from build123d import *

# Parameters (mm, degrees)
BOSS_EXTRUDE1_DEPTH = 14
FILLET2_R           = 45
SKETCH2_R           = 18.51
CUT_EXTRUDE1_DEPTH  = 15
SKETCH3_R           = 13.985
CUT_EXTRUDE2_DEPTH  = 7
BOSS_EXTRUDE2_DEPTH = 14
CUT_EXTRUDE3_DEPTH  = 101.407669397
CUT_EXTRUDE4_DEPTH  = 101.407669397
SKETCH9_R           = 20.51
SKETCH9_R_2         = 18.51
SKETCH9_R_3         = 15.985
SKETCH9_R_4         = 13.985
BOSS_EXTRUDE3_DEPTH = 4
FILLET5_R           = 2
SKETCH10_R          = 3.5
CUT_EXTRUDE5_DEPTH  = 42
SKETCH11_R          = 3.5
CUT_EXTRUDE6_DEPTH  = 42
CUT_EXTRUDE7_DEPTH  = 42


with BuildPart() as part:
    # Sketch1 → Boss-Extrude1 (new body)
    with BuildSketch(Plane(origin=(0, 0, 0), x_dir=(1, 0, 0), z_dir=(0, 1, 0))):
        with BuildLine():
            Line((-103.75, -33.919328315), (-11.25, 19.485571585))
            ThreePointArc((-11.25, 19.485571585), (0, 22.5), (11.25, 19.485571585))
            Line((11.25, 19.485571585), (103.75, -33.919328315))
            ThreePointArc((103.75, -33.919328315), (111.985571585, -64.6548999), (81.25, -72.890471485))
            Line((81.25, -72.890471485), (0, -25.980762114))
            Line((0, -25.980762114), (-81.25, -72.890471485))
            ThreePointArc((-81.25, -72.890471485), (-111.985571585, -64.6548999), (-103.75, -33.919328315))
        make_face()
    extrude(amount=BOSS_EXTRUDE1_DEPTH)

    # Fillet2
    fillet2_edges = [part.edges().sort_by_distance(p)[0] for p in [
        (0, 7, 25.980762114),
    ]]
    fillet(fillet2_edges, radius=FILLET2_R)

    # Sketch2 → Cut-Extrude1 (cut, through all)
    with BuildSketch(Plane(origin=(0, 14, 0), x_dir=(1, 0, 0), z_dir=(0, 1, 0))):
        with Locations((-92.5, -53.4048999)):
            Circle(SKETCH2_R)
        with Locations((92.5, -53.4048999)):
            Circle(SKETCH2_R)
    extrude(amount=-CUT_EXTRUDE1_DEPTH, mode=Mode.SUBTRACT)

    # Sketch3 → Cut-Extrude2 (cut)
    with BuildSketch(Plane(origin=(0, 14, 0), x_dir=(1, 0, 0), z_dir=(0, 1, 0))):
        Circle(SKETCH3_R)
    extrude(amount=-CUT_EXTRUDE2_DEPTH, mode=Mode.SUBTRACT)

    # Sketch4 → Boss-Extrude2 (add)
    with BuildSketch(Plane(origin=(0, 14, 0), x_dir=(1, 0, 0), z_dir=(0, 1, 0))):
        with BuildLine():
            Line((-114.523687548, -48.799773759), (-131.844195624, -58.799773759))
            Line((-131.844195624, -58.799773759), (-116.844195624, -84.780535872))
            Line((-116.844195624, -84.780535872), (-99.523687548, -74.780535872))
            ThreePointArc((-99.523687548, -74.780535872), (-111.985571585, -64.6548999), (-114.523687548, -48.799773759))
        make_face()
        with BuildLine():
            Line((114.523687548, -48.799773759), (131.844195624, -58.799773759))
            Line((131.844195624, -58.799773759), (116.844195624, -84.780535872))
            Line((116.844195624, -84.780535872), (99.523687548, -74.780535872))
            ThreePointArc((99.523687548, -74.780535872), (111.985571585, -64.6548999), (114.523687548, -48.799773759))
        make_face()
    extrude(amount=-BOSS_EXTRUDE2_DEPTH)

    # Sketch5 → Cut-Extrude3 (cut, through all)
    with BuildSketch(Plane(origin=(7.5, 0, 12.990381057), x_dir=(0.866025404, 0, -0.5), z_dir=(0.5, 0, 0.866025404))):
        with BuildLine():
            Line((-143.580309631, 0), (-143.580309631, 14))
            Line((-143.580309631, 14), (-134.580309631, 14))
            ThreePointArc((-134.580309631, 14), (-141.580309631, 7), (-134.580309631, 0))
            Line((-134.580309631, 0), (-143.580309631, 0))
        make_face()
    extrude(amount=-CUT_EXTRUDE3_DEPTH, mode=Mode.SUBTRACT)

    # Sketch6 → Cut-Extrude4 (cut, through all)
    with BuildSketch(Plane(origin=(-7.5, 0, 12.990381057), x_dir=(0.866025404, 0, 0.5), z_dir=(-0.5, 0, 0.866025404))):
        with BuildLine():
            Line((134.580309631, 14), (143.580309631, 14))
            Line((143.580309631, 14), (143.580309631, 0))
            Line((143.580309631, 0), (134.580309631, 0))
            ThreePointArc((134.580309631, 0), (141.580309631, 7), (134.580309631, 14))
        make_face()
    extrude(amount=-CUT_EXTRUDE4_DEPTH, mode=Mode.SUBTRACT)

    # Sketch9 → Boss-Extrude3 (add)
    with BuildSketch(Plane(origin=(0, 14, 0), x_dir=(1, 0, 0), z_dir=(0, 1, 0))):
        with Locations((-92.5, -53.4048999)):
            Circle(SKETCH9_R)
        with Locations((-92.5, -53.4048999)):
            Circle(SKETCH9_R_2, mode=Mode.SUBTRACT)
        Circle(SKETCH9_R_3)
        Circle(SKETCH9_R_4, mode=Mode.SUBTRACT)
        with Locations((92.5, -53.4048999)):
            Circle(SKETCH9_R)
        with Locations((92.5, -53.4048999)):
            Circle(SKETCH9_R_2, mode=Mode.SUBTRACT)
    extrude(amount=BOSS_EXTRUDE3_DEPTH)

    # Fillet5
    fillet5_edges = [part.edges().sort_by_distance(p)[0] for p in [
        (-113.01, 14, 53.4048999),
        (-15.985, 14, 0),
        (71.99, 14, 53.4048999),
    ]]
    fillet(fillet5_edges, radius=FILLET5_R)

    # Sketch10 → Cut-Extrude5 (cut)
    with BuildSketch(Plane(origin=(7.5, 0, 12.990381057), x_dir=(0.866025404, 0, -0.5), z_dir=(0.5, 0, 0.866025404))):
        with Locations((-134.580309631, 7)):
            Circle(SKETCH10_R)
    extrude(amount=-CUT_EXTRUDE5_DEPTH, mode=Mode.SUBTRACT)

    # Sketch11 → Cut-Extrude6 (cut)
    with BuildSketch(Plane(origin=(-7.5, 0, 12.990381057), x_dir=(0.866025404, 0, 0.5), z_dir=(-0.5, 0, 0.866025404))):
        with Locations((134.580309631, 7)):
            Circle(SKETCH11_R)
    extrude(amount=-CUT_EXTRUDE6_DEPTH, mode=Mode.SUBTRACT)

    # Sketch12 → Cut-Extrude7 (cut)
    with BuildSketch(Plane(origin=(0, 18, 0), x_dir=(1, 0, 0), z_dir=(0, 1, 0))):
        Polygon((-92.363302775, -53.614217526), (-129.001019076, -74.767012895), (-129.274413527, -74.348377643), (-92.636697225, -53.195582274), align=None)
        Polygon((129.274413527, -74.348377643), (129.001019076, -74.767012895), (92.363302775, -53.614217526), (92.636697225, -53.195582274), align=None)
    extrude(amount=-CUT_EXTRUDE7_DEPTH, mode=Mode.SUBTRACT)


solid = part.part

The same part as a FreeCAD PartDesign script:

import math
import FreeCAD as App
import Part
import Sketcher
from FreeCAD import Vector
Q = App.Units.Quantity


def edges_at(feature, points):
    """Names of the edges that pass closest to the given points."""
    edges = feature.Shape.Edges
    near = lambda p: min(range(len(edges)), key=lambda i: edges[i].distToShape(Part.Vertex(*p))[0])
    return sorted({f"Edge{near(p) + 1}" for p in points})

doc = App.newDocument("Part")
body = doc.addObject("PartDesign::Body", "Body")

# Sketch on XZ plane
sketch1 = body.newObject("Sketcher::SketchObject", "Sketch")
sketch1.AttachmentSupport = (doc.getObject("XZ_Plane"), [""])
sketch1.MapMode = "FlatFace"
sketch1.addGeometry(Part.LineSegment(Vector(-11.25, -19.485572, 0), Vector(-103.75, 33.919328, 0)), False)
sketch1.addGeometry(Part.ArcOfCircle(Part.Circle(Vector(-92.5, 53.4049, 0), Vector(0, 0, 1), 22.5), math.radians(60), math.radians(240)), False)
sketch1.addGeometry(Part.LineSegment(Vector(-81.25, 72.890471, 0), Vector(0, 25.980762, 0)), False)
sketch1.addGeometry(Part.LineSegment(Vector(0, 25.980762, 0), Vector(81.25, 72.890471, 0)), False)
sketch1.addGeometry(Part.ArcOfCircle(Part.Circle(Vector(92.5, 53.4049, 0), Vector(0, 0, 1), 22.5), math.radians(-60), math.radians(120)), False)
sketch1.addGeometry(Part.LineSegment(Vector(103.75, 33.919328, 0), Vector(11.25, -19.485572, 0)), False)
sketch1.addGeometry(Part.ArcOfCircle(Part.Circle(Vector(0, 0, 0), Vector(0, 0, 1), 22.5), math.radians(-120), math.radians(-60)), False)
sketch1.addConstraint(Sketcher.Constraint("Tangent", 0, 2, 1, 2))
sketch1.addConstraint(Sketcher.Constraint("Tangent", 1, 1, 2, 1))
sketch1.addConstraint(Sketcher.Constraint("Coincident", 2, 2, 3, 1))
sketch1.addConstraint(Sketcher.Constraint("Tangent", 3, 2, 4, 2))
sketch1.addConstraint(Sketcher.Constraint("Tangent", 4, 1, 5, 1))
sketch1.addConstraint(Sketcher.Constraint("Tangent", 5, 2, 6, 2))
sketch1.addConstraint(Sketcher.Constraint("Tangent", 6, 1, 0, 1))
sketch1.addConstraint(Sketcher.Constraint("Coincident", 6, 3, -1, 1))
sketch1.addConstraint(Sketcher.Constraint("Equal", 1, 4))
sketch1.addConstraint(Sketcher.Constraint("Equal", 4, 6))
sketch1.addConstraint(Sketcher.Constraint("Symmetric", 1, 3, 4, 3, -2))
sketch1.addConstraint(Sketcher.Constraint("PointOnObject", 2, 2, -2))
sketch1.addConstraint(Sketcher.Constraint("Parallel", 0, 2))
sketch1.addConstraint(Sketcher.Constraint("Radius", 1, Q("22.5 mm")))
sketch1.addConstraint(Sketcher.Constraint("Angle", 0, Q("150 deg")))
sketch1.addConstraint(Sketcher.Constraint("DistanceX", 1, 3, 4, 3, Q("185 mm")))
pad1 = body.newObject("PartDesign::Pad", "Pad")
pad1.Profile = sketch1
pad1.Length = 14
pad1.Reversed = True
doc.recompute()

fillet = body.newObject("PartDesign::Fillet", "Fillet")
fillet.Base = (pad1, edges_at(pad1, [(0, 7, 25.981)]))
fillet.Radius = 45

# Sketch on XZ plane
sketch2 = body.newObject("Sketcher::SketchObject", "Sketch001")
sketch2.AttachmentSupport = (doc.getObject("XZ_Plane"), [""])
sketch2.MapMode = "FlatFace"
sketch2.AttachmentOffset = App.Placement(Vector(0, 0, -14), App.Rotation())
sketch2.addGeometry(Part.Circle(Vector(-92.5, 53.4049, 0), Vector(0, 0, 1), 18.51), False)
sketch2.addGeometry(Part.Circle(Vector(92.5, 53.4049, 0), Vector(0, 0, 1), 18.51), False)
sketch2.addConstraint(Sketcher.Constraint("Equal", 0, 1))
sketch2.addConstraint(Sketcher.Constraint("Symmetric", 0, 3, 1, 3, -2))
sketch2.addConstraint(Sketcher.Constraint("Diameter", 0, Q("37.02 mm")))
sketch2.addConstraint(Sketcher.Constraint("DistanceX", 0, 3, 1, 3, Q("185 mm")))
sketch2.addConstraint(Sketcher.Constraint("DistanceY", -1, 1, 0, 3, Q("53.4049 mm")))
pocket1 = body.newObject("PartDesign::Pocket", "Pocket")
pocket1.Profile = sketch2
pocket1.Type = "ThroughAll"
pocket1.Reversed = True

# Sketch on XZ plane
sketch3 = body.newObject("Sketcher::SketchObject", "Sketch002")
sketch3.AttachmentSupport = (doc.getObject("XZ_Plane"), [""])
sketch3.MapMode = "FlatFace"
sketch3.AttachmentOffset = App.Placement(Vector(0, 0, -14), App.Rotation())
sketch3.addGeometry(Part.Circle(Vector(0, 0, 0), Vector(0, 0, 1), 13.985), False)
sketch3.addConstraint(Sketcher.Constraint("Coincident", 0, 3, -1, 1))
sketch3.addConstraint(Sketcher.Constraint("Diameter", 0, Q("27.97 mm")))
pocket2 = body.newObject("PartDesign::Pocket", "Pocket001")
pocket2.Profile = sketch3
pocket2.Length = 7
pocket2.Reversed = True

# Sketch on XZ plane
sketch4 = body.newObject("Sketcher::SketchObject", "Sketch003")
sketch4.AttachmentSupport = (doc.getObject("XZ_Plane"), [""])
sketch4.MapMode = "FlatFace"
sketch4.AttachmentOffset = App.Placement(Vector(0, 0, -14), App.Rotation())
sketch4.addGeometry(Part.LineSegment(Vector(-114.523688, 48.799774, 0), Vector(-131.844196, 58.799774, 0)), False)
sketch4.addGeometry(Part.LineSegment(Vector(-131.844196, 58.799774, 0), Vector(-116.844196, 84.780536, 0)), False)
sketch4.addGeometry(Part.LineSegment(Vector(-116.844196, 84.780536, 0), Vector(-99.523688, 74.780536, 0)), False)
sketch4.addGeometry(Part.ArcOfCircle(Part.Circle(Vector(-92.5, 53.4049, 0), Vector(0, 0, 1), 22.5), math.radians(108.189685), math.radians(191.810315)), False)
sketch4.addGeometry(Part.LineSegment(Vector(131.844196, 58.799774, 0), Vector(114.523688, 48.799774, 0)), False)
sketch4.addGeometry(Part.ArcOfCircle(Part.Circle(Vector(92.5, 53.4049, 0), Vector(0, 0, 1), 22.5), math.radians(-11.810315), math.radians(71.810315)), False)
sketch4.addGeometry(Part.LineSegment(Vector(99.523688, 74.780536, 0), Vector(116.844196, 84.780536, 0)), False)
sketch4.addGeometry(Part.LineSegment(Vector(116.844196, 84.780536, 0), Vector(131.844196, 58.799774, 0)), False)
sketch4.addConstraint(Sketcher.Constraint("Coincident", 0, 2, 1, 1))
sketch4.addConstraint(Sketcher.Constraint("Coincident", 1, 2, 2, 1))
sketch4.addConstraint(Sketcher.Constraint("Coincident", 2, 2, 3, 1))
sketch4.addConstraint(Sketcher.Constraint("Coincident", 3, 2, 0, 1))
sketch4.addConstraint(Sketcher.Constraint("Coincident", 4, 2, 5, 1))
sketch4.addConstraint(Sketcher.Constraint("Coincident", 5, 2, 6, 1))
sketch4.addConstraint(Sketcher.Constraint("Coincident", 6, 2, 7, 1))
sketch4.addConstraint(Sketcher.Constraint("Coincident", 7, 2, 4, 1))
sketch4.addConstraint(Sketcher.Constraint("Equal", 3, 5))
sketch4.addConstraint(Sketcher.Constraint("Symmetric", 3, 3, 5, 3, -2))
sketch4.addConstraint(Sketcher.Constraint("Symmetric", 1, 2, 6, 2, -2))
sketch4.addConstraint(Sketcher.Constraint("Symmetric", 0, 2, 7, 2, -2))
sketch4.addConstraint(Sketcher.Constraint("Perpendicular", 0, 1))
sketch4.addConstraint(Sketcher.Constraint("Perpendicular", 1, 2))
sketch4.addConstraint(Sketcher.Constraint("Parallel", 4, 6))
sketch4.addConstraint(Sketcher.Constraint("Perpendicular", 6, 7))
sketch4.addConstraint(Sketcher.Constraint("Equal", 0, 2))
sketch4.addConstraint(Sketcher.Constraint("Radius", 3, Q("22.5 mm")))
sketch4.addConstraint(Sketcher.Constraint("Angle", 0, Q("150 deg")))
sketch4.addConstraint(Sketcher.Constraint("Distance", 0, Q("20 mm")))
sketch4.addConstraint(Sketcher.Constraint("Distance", 1, Q("30 mm")))
sketch4.addConstraint(Sketcher.Constraint("DistanceX", 3, 3, 5, 3, Q("185 mm")))
sketch4.addConstraint(Sketcher.Constraint("DistanceY", -1, 1, 3, 3, Q("53.4049 mm")))
pad2 = body.newObject("PartDesign::Pad", "Pad001")
pad2.Profile = sketch4
pad2.Length = 14

# Sketch on an angled plane
sketch5 = body.newObject("Sketcher::SketchObject", "Sketch004")
sketch5.Placement = App.Placement(Vector(7.5, 0, 12.990381), App.Rotation(Vector(0.866025404, 0, -0.5), Vector(0, 1, 0), Vector(0.5, 0, 0.866025404), "ZXY"))
sketch5.addGeometry(Part.LineSegment(Vector(-143.58031, 14, 0), Vector(-143.58031, 0, 0)), False)
sketch5.addGeometry(Part.LineSegment(Vector(-143.58031, 0, 0), Vector(-134.58031, 0, 0)), False)
sketch5.addGeometry(Part.ArcOfCircle(Part.Circle(Vector(-134.58031, 7, 0), Vector(0, 0, 1), 7), math.radians(90), math.radians(270)), False)
sketch5.addGeometry(Part.LineSegment(Vector(-134.58031, 14, 0), Vector(-143.58031, 14, 0)), False)
sketch5.addConstraint(Sketcher.Constraint("Coincident", 0, 2, 1, 1))
sketch5.addConstraint(Sketcher.Constraint("Tangent", 1, 2, 2, 2))
sketch5.addConstraint(Sketcher.Constraint("Tangent", 2, 1, 3, 1))
sketch5.addConstraint(Sketcher.Constraint("Coincident", 3, 2, 0, 1))
sketch5.addConstraint(Sketcher.Constraint("Vertical", 0))
sketch5.addConstraint(Sketcher.Constraint("Horizontal", 1))
sketch5.addConstraint(Sketcher.Constraint("Horizontal", 3))
sketch5.addConstraint(Sketcher.Constraint("PointOnObject", 0, 2, -1))
sketch5.addConstraint(Sketcher.Constraint("Radius", 2, Q("7 mm")))
sketch5.addConstraint(Sketcher.Constraint("DistanceX", 1, 1, 1, 2, Q("9 mm")))
sketch5.addConstraint(Sketcher.Constraint("DistanceX", 2, 3, -1, 1, Q("134.58031 mm")))
pocket3 = body.newObject("PartDesign::Pocket", "Pocket002")
pocket3.Profile = sketch5
pocket3.Type = "ThroughAll"

# Sketch on an angled plane
sketch6 = body.newObject("Sketcher::SketchObject", "Sketch005")
sketch6.Placement = App.Placement(Vector(-7.5, 0, 12.990381), App.Rotation(Vector(0.866025404, 0, 0.5), Vector(0, 1, 0), Vector(-0.5, 0, 0.866025404), "ZXY"))
sketch6.addGeometry(Part.LineSegment(Vector(143.58031, 14, 0), Vector(134.58031, 14, 0)), False)
sketch6.addGeometry(Part.ArcOfCircle(Part.Circle(Vector(134.58031, 7, 0), Vector(0, 0, 1), 7), math.radians(-90), math.radians(90)), False)
sketch6.addGeometry(Part.LineSegment(Vector(134.58031, 0, 0), Vector(143.58031, 0, 0)), False)
sketch6.addGeometry(Part.LineSegment(Vector(143.58031, 0, 0), Vector(143.58031, 14, 0)), False)
sketch6.addConstraint(Sketcher.Constraint("Tangent", 0, 2, 1, 2))
sketch6.addConstraint(Sketcher.Constraint("Tangent", 1, 1, 2, 1))
sketch6.addConstraint(Sketcher.Constraint("Coincident", 2, 2, 3, 1))
sketch6.addConstraint(Sketcher.Constraint("Coincident", 3, 2, 0, 1))
sketch6.addConstraint(Sketcher.Constraint("Horizontal", 0))
sketch6.addConstraint(Sketcher.Constraint("Horizontal", 2))
sketch6.addConstraint(Sketcher.Constraint("Vertical", 3))
sketch6.addConstraint(Sketcher.Constraint("PointOnObject", 1, 1, -1))
sketch6.addConstraint(Sketcher.Constraint("Radius", 1, Q("7 mm")))
sketch6.addConstraint(Sketcher.Constraint("DistanceX", 0, 2, 0, 1, Q("9 mm")))
sketch6.addConstraint(Sketcher.Constraint("DistanceX", -1, 1, 1, 3, Q("134.58031 mm")))
pocket4 = body.newObject("PartDesign::Pocket", "Pocket003")
pocket4.Profile = sketch6
pocket4.Type = "ThroughAll"

# Sketch on XZ plane
sketch7 = body.newObject("Sketcher::SketchObject", "Sketch006")
sketch7.AttachmentSupport = (doc.getObject("XZ_Plane"), [""])
sketch7.MapMode = "FlatFace"
sketch7.AttachmentOffset = App.Placement(Vector(0, 0, -14), App.Rotation())
sketch7.addGeometry(Part.Circle(Vector(-92.5, 53.4049, 0), Vector(0, 0, 1), 20.51), False)
sketch7.addGeometry(Part.Circle(Vector(-92.5, 53.4049, 0), Vector(0, 0, 1), 18.51), False)
sketch7.addGeometry(Part.Circle(Vector(0, 0, 0), Vector(0, 0, 1), 15.985), False)
sketch7.addGeometry(Part.Circle(Vector(0, 0, 0), Vector(0, 0, 1), 13.985), False)
sketch7.addGeometry(Part.Circle(Vector(92.5, 53.4049, 0), Vector(0, 0, 1), 20.51), False)
sketch7.addGeometry(Part.Circle(Vector(92.5, 53.4049, 0), Vector(0, 0, 1), 18.51), False)
sketch7.addConstraint(Sketcher.Constraint("Coincident", 2, 3, -1, 1))
sketch7.addConstraint(Sketcher.Constraint("Coincident", 3, 3, -1, 1))
sketch7.addConstraint(Sketcher.Constraint("Coincident", 1, 3, 0, 3))
sketch7.addConstraint(Sketcher.Constraint("Coincident", 5, 3, 4, 3))
sketch7.addConstraint(Sketcher.Constraint("Equal", 0, 4))
sketch7.addConstraint(Sketcher.Constraint("Equal", 1, 5))
sketch7.addConstraint(Sketcher.Constraint("Symmetric", 0, 3, 4, 3, -2))
sketch7.addConstraint(Sketcher.Constraint("Diameter", 0, Q("41.02 mm")))
sketch7.addConstraint(Sketcher.Constraint("Diameter", 1, Q("37.02 mm")))
sketch7.addConstraint(Sketcher.Constraint("Diameter", 2, Q("31.97 mm")))
sketch7.addConstraint(Sketcher.Constraint("Diameter", 3, Q("27.97 mm")))
sketch7.addConstraint(Sketcher.Constraint("DistanceX", 0, 3, 4, 3, Q("185 mm")))
sketch7.addConstraint(Sketcher.Constraint("DistanceY", -1, 1, 0, 3, Q("53.4049 mm")))
pad3 = body.newObject("PartDesign::Pad", "Pad002")
pad3.Profile = sketch7
pad3.Length = 4
pad3.Reversed = True
doc.recompute()

fillet2 = body.newObject("PartDesign::Fillet", "Fillet001")
fillet2.Base = (pad3, edges_at(pad3, [(-113.01, 14, 53.405), (-15.985, 14, 0), (71.99, 14, 53.405)]))
fillet2.Radius = 2

# Sketch on an angled plane
sketch8 = body.newObject("Sketcher::SketchObject", "Sketch007")
sketch8.Placement = App.Placement(Vector(7.5, 0, 12.990381), App.Rotation(Vector(0.866025404, 0, -0.5), Vector(0, 1, 0), Vector(0.5, 0, 0.866025404), "ZXY"))
sketch8.addGeometry(Part.Circle(Vector(-134.58031, 7, 0), Vector(0, 0, 1), 3.5), False)
sketch8.addConstraint(Sketcher.Constraint("Diameter", 0, Q("7 mm")))
sketch8.addConstraint(Sketcher.Constraint("DistanceY", -1, 1, 0, 3, Q("7 mm")))
sketch8.addConstraint(Sketcher.Constraint("DistanceX", 0, 3, -1, 1, Q("134.58031 mm")))
pocket5 = body.newObject("PartDesign::Pocket", "Pocket004")
pocket5.Profile = sketch8
pocket5.Length = 42

# Sketch on an angled plane
sketch9 = body.newObject("Sketcher::SketchObject", "Sketch008")
sketch9.Placement = App.Placement(Vector(-7.5, 0, 12.990381), App.Rotation(Vector(0.866025404, 0, 0.5), Vector(0, 1, 0), Vector(-0.5, 0, 0.866025404), "ZXY"))
sketch9.addGeometry(Part.Circle(Vector(134.58031, 7, 0), Vector(0, 0, 1), 3.5), False)
sketch9.addConstraint(Sketcher.Constraint("Diameter", 0, Q("7 mm")))
sketch9.addConstraint(Sketcher.Constraint("DistanceY", -1, 1, 0, 3, Q("7 mm")))
sketch9.addConstraint(Sketcher.Constraint("DistanceX", -1, 1, 0, 3, Q("134.58031 mm")))
pocket6 = body.newObject("PartDesign::Pocket", "Pocket005")
pocket6.Profile = sketch9
pocket6.Length = 42

# Sketch on XZ plane
sketch10 = body.newObject("Sketcher::SketchObject", "Sketch009")
sketch10.AttachmentSupport = (doc.getObject("XZ_Plane"), [""])
sketch10.MapMode = "FlatFace"
sketch10.AttachmentOffset = App.Placement(Vector(0, 0, -18), App.Rotation())
sketch10.addGeometry(Part.LineSegment(Vector(-129.001019, 74.767013, 0), Vector(-92.363303, 53.614218, 0)), False)
sketch10.addGeometry(Part.LineSegment(Vector(-92.363303, 53.614218, 0), Vector(-92.636697, 53.195582, 0)), False)
sketch10.addGeometry(Part.LineSegment(Vector(-92.636697, 53.195582, 0), Vector(-129.274414, 74.348378, 0)), False)
sketch10.addGeometry(Part.LineSegment(Vector(-129.274414, 74.348378, 0), Vector(-129.001019, 74.767013, 0)), False)
sketch10.addGeometry(Part.LineSegment(Vector(129.001019, 74.767013, 0), Vector(129.274414, 74.348378, 0)), False)
sketch10.addGeometry(Part.LineSegment(Vector(129.274414, 74.348378, 0), Vector(92.636697, 53.195582, 0)), False)
sketch10.addGeometry(Part.LineSegment(Vector(92.636697, 53.195582, 0), Vector(92.363303, 53.614218, 0)), False)
sketch10.addGeometry(Part.LineSegment(Vector(92.363303, 53.614218, 0), Vector(129.001019, 74.767013, 0)), False)
sketch10.addConstraint(Sketcher.Constraint("Coincident", 0, 2, 1, 1))
sketch10.addConstraint(Sketcher.Constraint("Coincident", 1, 2, 2, 1))
sketch10.addConstraint(Sketcher.Constraint("Coincident", 2, 2, 3, 1))
sketch10.addConstraint(Sketcher.Constraint("Coincident", 3, 2, 0, 1))
sketch10.addConstraint(Sketcher.Constraint("Coincident", 4, 2, 5, 1))
sketch10.addConstraint(Sketcher.Constraint("Coincident", 5, 2, 6, 1))
sketch10.addConstraint(Sketcher.Constraint("Coincident", 6, 2, 7, 1))
sketch10.addConstraint(Sketcher.Constraint("Coincident", 7, 2, 4, 1))
sketch10.addConstraint(Sketcher.Constraint("Symmetric", 2, 2, 4, 2, -2))
sketch10.addConstraint(Sketcher.Constraint("Symmetric", 1, 2, 5, 2, -2))
sketch10.addConstraint(Sketcher.Constraint("Symmetric", 0, 2, 6, 2, -2))
sketch10.addConstraint(Sketcher.Constraint("Symmetric", 3, 2, 7, 2, -2))
sketch10.addConstraint(Sketcher.Constraint("Parallel", 0, 2))
sketch10.addConstraint(Sketcher.Constraint("Parallel", 1, 3))
sketch10.addConstraint(Sketcher.Constraint("Angle", 0, Q("-30 deg")))
sketch10.addConstraint(Sketcher.Constraint("DistanceX", 0, 2, 5, 2, Q("185 mm")))
sketch10.addConstraint(Sketcher.Constraint("Distance", 1, Q("0.5 mm")))
sketch10.addConstraint(Sketcher.Constraint("Distance", 0, Q("42.305591 mm")))
sketch10.addConstraint(Sketcher.Constraint("DistanceX", 3, 2, -1, 1, Q("129.001019 mm")))
sketch10.addConstraint(Sketcher.Constraint("DistanceY", -1, 1, 0, 2, Q("53.614218 mm")))
pocket7 = body.newObject("PartDesign::Pocket", "Pocket006")
pocket7.Profile = sketch10
pocket7.Length = 42
pocket7.Reversed = True

doc.recompute()
